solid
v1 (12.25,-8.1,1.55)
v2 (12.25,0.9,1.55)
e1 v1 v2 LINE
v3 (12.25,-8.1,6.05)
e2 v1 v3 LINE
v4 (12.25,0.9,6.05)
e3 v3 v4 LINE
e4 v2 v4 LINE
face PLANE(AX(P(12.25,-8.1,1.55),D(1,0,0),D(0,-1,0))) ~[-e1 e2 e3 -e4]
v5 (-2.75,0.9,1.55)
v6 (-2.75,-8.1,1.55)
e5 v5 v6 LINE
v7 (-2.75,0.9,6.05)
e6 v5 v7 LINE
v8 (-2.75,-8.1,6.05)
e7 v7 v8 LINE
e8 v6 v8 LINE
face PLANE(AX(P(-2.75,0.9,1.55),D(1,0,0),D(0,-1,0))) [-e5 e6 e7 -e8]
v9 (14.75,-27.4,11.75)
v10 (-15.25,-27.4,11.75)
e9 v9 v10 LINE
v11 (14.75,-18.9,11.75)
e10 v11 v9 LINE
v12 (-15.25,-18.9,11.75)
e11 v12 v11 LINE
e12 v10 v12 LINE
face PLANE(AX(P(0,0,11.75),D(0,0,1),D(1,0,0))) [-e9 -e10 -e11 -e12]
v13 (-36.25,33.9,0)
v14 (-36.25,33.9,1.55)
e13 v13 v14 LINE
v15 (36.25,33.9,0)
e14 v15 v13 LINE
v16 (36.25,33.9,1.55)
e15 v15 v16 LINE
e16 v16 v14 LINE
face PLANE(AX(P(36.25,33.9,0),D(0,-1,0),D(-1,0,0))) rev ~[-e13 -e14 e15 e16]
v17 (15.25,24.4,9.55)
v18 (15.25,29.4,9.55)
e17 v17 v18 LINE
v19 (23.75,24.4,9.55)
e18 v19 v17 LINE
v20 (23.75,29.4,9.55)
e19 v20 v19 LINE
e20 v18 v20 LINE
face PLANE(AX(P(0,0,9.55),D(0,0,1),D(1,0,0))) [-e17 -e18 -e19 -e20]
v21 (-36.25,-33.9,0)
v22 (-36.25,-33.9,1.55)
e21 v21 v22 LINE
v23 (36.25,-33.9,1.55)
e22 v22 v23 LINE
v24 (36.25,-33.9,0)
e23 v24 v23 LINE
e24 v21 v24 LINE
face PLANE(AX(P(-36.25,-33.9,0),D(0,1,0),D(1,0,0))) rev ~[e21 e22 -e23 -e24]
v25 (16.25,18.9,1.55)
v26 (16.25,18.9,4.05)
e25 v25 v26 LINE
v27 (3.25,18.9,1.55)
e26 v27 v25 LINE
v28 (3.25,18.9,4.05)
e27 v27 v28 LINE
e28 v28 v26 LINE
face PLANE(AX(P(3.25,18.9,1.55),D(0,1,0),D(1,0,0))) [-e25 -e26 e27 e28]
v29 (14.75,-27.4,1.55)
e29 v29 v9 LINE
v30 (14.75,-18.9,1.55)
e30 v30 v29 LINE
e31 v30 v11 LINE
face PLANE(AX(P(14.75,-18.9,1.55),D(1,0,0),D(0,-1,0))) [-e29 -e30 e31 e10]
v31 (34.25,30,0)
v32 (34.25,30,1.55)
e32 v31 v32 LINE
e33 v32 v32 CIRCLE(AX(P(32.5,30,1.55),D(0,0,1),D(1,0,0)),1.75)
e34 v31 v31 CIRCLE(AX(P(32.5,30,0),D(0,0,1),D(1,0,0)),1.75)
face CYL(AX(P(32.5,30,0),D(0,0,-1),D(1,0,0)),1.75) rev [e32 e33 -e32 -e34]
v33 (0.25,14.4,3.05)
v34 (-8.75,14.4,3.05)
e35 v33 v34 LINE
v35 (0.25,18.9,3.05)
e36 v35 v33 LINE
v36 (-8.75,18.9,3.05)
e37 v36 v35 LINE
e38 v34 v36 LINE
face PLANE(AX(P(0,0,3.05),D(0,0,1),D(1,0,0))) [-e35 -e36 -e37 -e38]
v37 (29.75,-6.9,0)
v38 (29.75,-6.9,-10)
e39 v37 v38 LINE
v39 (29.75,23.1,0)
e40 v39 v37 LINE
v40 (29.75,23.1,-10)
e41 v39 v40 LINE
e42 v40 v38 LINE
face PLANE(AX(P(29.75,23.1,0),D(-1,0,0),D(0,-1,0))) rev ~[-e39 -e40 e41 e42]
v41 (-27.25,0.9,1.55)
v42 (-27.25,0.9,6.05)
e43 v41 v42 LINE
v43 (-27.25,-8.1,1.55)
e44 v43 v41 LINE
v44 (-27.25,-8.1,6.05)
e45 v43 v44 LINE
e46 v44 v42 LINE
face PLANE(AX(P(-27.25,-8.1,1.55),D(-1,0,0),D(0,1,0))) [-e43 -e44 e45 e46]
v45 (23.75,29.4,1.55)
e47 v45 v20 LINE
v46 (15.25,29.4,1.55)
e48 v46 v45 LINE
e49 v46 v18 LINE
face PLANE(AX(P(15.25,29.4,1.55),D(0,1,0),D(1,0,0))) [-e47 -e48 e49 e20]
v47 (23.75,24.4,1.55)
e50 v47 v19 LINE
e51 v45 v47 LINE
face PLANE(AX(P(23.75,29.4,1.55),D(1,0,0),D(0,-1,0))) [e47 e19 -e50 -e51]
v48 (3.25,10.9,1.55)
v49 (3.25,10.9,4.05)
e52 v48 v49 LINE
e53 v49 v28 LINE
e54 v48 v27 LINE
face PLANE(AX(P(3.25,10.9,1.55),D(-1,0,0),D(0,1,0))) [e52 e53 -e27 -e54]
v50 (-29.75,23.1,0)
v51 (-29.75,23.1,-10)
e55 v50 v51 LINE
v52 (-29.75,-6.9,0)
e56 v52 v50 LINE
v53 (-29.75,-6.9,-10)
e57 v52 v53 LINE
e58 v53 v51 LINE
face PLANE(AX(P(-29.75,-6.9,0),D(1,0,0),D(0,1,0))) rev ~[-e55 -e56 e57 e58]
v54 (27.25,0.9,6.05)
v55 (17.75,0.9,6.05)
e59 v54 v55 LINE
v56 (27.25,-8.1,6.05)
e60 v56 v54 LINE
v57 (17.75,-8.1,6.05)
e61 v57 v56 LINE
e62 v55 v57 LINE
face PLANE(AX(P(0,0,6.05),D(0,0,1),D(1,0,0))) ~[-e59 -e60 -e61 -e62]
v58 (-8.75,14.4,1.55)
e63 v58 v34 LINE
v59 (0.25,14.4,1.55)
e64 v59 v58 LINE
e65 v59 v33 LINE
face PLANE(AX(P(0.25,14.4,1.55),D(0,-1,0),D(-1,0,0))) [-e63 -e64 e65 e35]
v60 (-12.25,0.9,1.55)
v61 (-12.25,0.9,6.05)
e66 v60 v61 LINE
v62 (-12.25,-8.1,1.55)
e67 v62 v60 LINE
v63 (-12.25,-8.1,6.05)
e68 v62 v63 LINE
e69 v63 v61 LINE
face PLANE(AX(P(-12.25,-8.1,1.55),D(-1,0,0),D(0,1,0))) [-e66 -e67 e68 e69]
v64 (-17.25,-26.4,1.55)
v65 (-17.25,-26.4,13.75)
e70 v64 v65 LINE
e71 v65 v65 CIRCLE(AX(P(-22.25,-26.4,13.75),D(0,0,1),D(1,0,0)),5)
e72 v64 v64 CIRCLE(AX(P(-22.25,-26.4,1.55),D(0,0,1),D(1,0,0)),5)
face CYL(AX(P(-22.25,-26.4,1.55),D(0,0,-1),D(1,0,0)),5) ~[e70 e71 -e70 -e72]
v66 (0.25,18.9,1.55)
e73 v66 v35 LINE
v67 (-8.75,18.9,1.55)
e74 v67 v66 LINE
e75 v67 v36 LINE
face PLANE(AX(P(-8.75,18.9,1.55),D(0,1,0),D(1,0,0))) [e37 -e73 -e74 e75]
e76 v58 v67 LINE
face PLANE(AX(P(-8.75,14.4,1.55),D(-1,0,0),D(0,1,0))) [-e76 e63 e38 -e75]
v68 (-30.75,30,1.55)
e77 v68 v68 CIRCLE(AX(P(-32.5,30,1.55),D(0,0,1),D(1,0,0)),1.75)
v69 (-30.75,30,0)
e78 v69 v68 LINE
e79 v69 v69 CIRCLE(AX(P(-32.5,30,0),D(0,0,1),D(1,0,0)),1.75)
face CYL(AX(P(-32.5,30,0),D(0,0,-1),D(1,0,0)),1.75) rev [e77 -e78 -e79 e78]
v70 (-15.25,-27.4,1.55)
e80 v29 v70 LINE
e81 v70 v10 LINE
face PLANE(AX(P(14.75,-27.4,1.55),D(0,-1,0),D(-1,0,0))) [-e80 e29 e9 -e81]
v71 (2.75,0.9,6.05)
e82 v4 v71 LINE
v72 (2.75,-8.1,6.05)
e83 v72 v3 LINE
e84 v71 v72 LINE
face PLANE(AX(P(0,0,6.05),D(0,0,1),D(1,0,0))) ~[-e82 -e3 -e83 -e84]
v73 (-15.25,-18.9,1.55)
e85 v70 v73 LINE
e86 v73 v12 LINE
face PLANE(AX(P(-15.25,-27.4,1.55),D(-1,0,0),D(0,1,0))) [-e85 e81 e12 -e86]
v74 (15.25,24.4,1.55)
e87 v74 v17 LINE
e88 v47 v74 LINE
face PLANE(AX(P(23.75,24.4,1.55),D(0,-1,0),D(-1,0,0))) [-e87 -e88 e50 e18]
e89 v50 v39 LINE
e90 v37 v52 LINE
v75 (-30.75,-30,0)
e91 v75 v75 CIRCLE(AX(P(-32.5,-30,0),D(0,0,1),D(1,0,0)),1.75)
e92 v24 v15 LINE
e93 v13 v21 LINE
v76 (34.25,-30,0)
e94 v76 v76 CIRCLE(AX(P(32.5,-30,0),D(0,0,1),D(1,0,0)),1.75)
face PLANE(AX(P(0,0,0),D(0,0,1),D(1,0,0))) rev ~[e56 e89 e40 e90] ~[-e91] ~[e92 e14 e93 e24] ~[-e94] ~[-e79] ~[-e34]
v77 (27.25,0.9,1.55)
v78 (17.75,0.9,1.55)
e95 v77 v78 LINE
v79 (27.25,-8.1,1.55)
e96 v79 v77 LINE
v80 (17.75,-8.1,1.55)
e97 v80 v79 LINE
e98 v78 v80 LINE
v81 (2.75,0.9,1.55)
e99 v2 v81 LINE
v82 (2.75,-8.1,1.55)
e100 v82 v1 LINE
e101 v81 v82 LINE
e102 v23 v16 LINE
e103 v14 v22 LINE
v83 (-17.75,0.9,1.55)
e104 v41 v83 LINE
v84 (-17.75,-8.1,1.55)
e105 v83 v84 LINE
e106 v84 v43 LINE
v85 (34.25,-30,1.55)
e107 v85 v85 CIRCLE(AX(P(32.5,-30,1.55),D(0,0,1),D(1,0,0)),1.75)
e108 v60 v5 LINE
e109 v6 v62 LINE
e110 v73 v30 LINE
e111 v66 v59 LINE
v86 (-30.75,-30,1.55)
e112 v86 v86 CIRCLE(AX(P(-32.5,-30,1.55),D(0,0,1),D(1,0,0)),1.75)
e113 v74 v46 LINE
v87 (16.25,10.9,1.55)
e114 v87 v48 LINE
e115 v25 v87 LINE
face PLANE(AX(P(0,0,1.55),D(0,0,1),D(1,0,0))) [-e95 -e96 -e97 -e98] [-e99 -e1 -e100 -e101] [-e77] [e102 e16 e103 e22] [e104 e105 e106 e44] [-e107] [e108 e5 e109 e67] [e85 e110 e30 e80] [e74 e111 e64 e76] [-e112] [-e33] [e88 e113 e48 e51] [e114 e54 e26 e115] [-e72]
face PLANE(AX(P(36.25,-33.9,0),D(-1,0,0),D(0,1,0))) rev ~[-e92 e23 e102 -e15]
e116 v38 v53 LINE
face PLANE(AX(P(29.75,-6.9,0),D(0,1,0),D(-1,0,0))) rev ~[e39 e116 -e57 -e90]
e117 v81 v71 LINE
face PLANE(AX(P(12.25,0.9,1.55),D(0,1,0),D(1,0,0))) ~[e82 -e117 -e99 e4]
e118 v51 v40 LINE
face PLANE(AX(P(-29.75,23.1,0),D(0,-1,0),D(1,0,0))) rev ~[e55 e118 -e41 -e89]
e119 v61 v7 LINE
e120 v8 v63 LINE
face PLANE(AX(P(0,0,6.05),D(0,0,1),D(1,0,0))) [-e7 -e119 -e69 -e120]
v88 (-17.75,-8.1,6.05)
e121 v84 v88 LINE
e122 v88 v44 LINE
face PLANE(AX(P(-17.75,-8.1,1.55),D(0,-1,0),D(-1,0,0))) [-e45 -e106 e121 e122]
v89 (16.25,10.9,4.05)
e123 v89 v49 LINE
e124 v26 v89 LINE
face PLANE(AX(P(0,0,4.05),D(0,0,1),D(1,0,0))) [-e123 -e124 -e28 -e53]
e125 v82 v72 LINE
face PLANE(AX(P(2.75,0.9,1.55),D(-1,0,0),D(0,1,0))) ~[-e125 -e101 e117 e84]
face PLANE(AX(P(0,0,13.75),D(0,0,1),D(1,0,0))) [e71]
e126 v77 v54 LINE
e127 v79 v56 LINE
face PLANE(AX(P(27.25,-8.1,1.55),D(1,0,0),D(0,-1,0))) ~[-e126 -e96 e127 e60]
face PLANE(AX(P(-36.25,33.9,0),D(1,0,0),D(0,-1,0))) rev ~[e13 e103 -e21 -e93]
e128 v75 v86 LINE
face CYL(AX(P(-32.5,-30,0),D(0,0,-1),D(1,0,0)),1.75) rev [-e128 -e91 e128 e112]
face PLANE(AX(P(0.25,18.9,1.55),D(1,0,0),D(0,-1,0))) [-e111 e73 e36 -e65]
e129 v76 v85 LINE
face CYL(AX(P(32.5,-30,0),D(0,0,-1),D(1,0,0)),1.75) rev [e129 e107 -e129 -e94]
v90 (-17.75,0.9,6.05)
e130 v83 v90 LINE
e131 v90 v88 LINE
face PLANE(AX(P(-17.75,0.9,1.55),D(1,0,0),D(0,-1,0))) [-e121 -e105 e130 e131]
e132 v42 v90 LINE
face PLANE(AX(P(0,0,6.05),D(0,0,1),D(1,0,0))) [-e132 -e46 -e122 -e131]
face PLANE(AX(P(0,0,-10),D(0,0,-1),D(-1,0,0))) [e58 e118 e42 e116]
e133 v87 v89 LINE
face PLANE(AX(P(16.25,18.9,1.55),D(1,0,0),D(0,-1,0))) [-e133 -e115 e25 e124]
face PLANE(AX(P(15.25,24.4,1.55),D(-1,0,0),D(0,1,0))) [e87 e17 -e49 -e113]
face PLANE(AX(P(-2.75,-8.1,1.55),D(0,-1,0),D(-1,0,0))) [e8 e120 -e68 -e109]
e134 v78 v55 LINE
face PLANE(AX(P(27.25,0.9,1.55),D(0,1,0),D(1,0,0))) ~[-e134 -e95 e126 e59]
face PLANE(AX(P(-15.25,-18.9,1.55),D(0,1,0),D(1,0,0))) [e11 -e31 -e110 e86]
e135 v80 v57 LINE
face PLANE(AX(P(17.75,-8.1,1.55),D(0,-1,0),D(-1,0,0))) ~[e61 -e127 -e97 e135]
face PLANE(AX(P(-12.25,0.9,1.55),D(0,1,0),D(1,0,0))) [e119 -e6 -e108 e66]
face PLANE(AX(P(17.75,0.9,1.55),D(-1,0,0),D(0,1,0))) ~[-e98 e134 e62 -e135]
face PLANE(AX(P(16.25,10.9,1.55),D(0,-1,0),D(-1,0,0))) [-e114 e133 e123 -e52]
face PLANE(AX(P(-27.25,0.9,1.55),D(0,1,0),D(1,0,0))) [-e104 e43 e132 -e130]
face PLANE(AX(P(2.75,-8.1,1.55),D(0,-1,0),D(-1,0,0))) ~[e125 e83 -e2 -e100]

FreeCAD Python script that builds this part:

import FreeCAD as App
import Part
import Sketcher

V = App.Vector

doc = App.newDocument("Part")
params = doc.addObject("Spreadsheet::Sheet", "Params")
for row, (alias, value) in enumerate([
    ("sketch1_diameter", "3.5 mm"),
    ("sketch1_width", "72.5 mm"),
    ("sketch1_height", "67.8 mm"),
    ("pad1_length", "1.55 mm"),
    ("sketch2_diameter", "10 mm"),
    ("pad2_length", "12.2 mm"),
    ("sketch3_height", "9 mm"),
    ("sketch3_width", "9.5 mm"),
    ("pad3_length", "4.5 mm"),
    ("sketch4_width", "30 mm"),
    ("sketch4_height", "8.5 mm"),
    ("pad4_length", "10.2 mm"),
    ("sketch5_width", "13 mm"),
    ("sketch5_height", "8 mm"),
    ("pad5_length", "2.5 mm"),
    ("sketch6_width", "9 mm"),
    ("sketch6_height", "4.5 mm"),
    ("pad6_length", "1.5 mm"),
    ("sketch7_height", "5 mm"),
    ("sketch7_width", "8.5 mm"),
    ("pad7_length", "8 mm"),
    ("sketch8_height", "30 mm"),
    ("sketch8_width", "59.5 mm"),
    ("pad8_length", "10 mm"),
], start=1):
    params.set(f"A{row}", alias)
    params.set(f"B{row}", "=" + value)
    params.setAlias(f"B{row}", alias)

body = doc.addObject("PartDesign::Body", "Body")

sketch1 = body.newObject("Sketcher::SketchObject", "Sketch")
sketch1.AttachmentSupport = (doc.getObject("XY_Plane"), [""])
sketch1.MapMode = "FlatFace"
sketch1.addGeometry([
    Part.LineSegment(V(-36.2, 33.9, 0), V(-36.2, -33.9, 0)),
    Part.LineSegment(V(-36.2, -33.9, 0), V(36.2, -33.9, 0)),
    Part.LineSegment(V(36.2, -33.9, 0), V(36.2, 33.9, 0)),
    Part.LineSegment(V(36.2, 33.9, 0), V(-36.2, 33.9, 0)),
    Part.Circle(V(-32.5, -30, 0), V(0, 0, 1), 1.8),
    Part.Circle(V(32.5, -30, 0), V(0, 0, 1), 1.8),
    Part.Circle(V(-32.5, 30, 0), V(0, 0, 1), 1.8),
    Part.Circle(V(32.5, 30, 0), V(0, 0, 1), 1.8),
], False)
sketch1.addConstraint([
    Sketcher.Constraint("Coincident", 0, 2, 1, 1),
    Sketcher.Constraint("Coincident", 1, 2, 2, 1),
    Sketcher.Constraint("Coincident", 2, 2, 3, 1),
    Sketcher.Constraint("Coincident", 3, 2, 0, 1),
    Sketcher.Constraint("Vertical", 0),
    Sketcher.Constraint("Horizontal", 1),
    Sketcher.Constraint("Vertical", 2),
    Sketcher.Constraint("Horizontal", 3),
    Sketcher.Constraint("Equal", 4, 5),
    Sketcher.Constraint("Equal", 5, 6),
    Sketcher.Constraint("Equal", 6, 7),
    Sketcher.Constraint("Symmetric", 5, 3, 6, 3, -1, 1),
    Sketcher.Constraint("Symmetric", 4, 3, 7, 3, -1, 1),
    Sketcher.Constraint("Symmetric", 0, 2, 2, 2, -1, 1),
    Sketcher.Constraint("Symmetric", 4, 3, 5, 3, -2),
    Sketcher.Constraint("Diameter", 4, 3.5),
    Sketcher.Constraint("DistanceX", 1, 1, 1, 2, 72.5),
    Sketcher.Constraint("DistanceY", 0, 2, 0, 1, 67.8),
    Sketcher.Constraint("DistanceX", 4, 3, 5, 3, 65.0),
    Sketcher.Constraint("DistanceY", 4, 3, 6, 3, 60.0),
])
sketch1.setExpression("Constraints[15]", "Params.sketch1_diameter")
sketch1.setExpression("Constraints[16]", "Params.sketch1_width")
sketch1.setExpression("Constraints[17]", "Params.sketch1_height")
pad1 = body.newObject("PartDesign::Pad", "Pad")
pad1.Profile = sketch1
pad1.setExpression("Length", "Params.pad1_length")

sketch2 = body.newObject("Sketcher::SketchObject", "Sketch001")
sketch2.AttachmentSupport = (doc.getObject("XY_Plane"), [""])
sketch2.MapMode = "FlatFace"
sketch2.AttachmentOffset = App.Placement(V(0, 0, 1.55), App.Rotation())
sketch2.addGeometry(Part.Circle(V(-22, -26, 0), V(0, 0, 1), 5), False)
sketch2.addConstraint([
    Sketcher.Constraint("Diameter", 0, 10.0),
    Sketcher.Constraint("DistanceY", 0, 3, -1, 1, 26.4),
    Sketcher.Constraint("DistanceX", 0, 3, -1, 1, 22.25),
])
sketch2.setExpression("Constraints[0]", "Params.sketch2_diameter")
pad2 = body.newObject("PartDesign::Pad", "Pad001")
pad2.Profile = sketch2
pad2.setExpression("Length", "Params.pad2_length")

sketch3 = body.newObject("Sketcher::SketchObject", "Sketch002")
sketch3.AttachmentSupport = (doc.getObject("XY_Plane"), [""])
sketch3.MapMode = "FlatFace"
sketch3.AttachmentOffset = App.Placement(V(0, 0, 1.55), App.Rotation())
sketch3.addGeometry([
    Part.LineSegment(V(-18, 1, 0), V(-27, 1, 0)),
    Part.LineSegment(V(-27, 1, 0), V(-27, -8, 0)),
    Part.LineSegment(V(-27, -8, 0), V(-18, -8, 0)),
    Part.LineSegment(V(-18, -8, 0), V(-18, 1, 0)),
    Part.LineSegment(V(-3, 1, 0), V(-12, 1, 0)),
    Part.LineSegment(V(-12, 1, 0), V(-12, -8, 0)),
    Part.LineSegment(V(-12, -8, 0), V(-3, -8, 0)),
    Part.LineSegment(V(-3, -8, 0), V(-3, 1, 0)),
], False)
sketch3.addConstraint([
    Sketcher.Constraint("Coincident", 0, 2, 1, 1),
    Sketcher.Constraint("Coincident", 1, 2, 2, 1),
    Sketcher.Constraint("Coincident", 2, 2, 3, 1),
    Sketcher.Constraint("Coincident", 3, 2, 0, 1),
    Sketcher.Constraint("Coincident", 4, 2, 5, 1),
    Sketcher.Constraint("Coincident", 5, 2, 6, 1),
    Sketcher.Constraint("Coincident", 6, 2, 7, 1),
    Sketcher.Constraint("Coincident", 7, 2, 4, 1),
    Sketcher.Constraint("Horizontal", 0),
    Sketcher.Constraint("Vertical", 1),
    Sketcher.Constraint("Horizontal", 2),
    Sketcher.Constraint("Vertical", 3),
    Sketcher.Constraint("Horizontal", 4),
    Sketcher.Constraint("Vertical", 5),
    Sketcher.Constraint("Horizontal", 6),
    Sketcher.Constraint("Vertical", 7),
    Sketcher.Constraint("Horizontal", 3, 2, 4, 2),
    Sketcher.Constraint("Horizontal", 2, 2, 5, 2),
    Sketcher.Constraint("Equal", 2, 4),
    Sketcher.Constraint("DistanceY", 1, 2, 1, 1, 9.0),
    Sketcher.Constraint("DistanceX", 0, 2, 0, 1, 9.5),
    Sketcher.Constraint("DistanceX", 0, 2, 4, 2, 15.0),
    Sketcher.Constraint("DistanceY", -1, 1, 0, 2, 0.9),
    Sketcher.Constraint("DistanceX", 0, 2, -1, 1, 27.25),
])
sketch3.setExpression("Constraints[19]", "Params.sketch3_height")
sketch3.setExpression("Constraints[20]", "Params.sketch3_width")
pad3 = body.newObject("PartDesign::Pad", "Pad002")
pad3.Profile = sketch3
pad3.setExpression("Length", "Params.pad3_length")

sketch4 = body.newObject("Sketcher::SketchObject", "Sketch003")
sketch4.AttachmentSupport = (doc.getObject("XY_Plane"), [""])
sketch4.MapMode = "FlatFace"
sketch4.AttachmentOffset = App.Placement(V(0, 0, 1.55), App.Rotation())
sketch4.addGeometry([
    Part.LineSegment(V(15, -19, 0), V(-15, -19, 0)),
    Part.LineSegment(V(-15, -19, 0), V(-15, -27, 0)),
    Part.LineSegment(V(-15, -27, 0), V(15, -27, 0)),
    Part.LineSegment(V(15, -27, 0), V(15, -19, 0)),
], False)
sketch4.addConstraint([
    Sketcher.Constraint("Coincident", 0, 2, 1, 1),
    Sketcher.Constraint("Coincident", 1, 2, 2, 1),
    Sketcher.Constraint("Coincident", 2, 2, 3, 1),
    Sketcher.Constraint("Coincident", 3, 2, 0, 1),
    Sketcher.Constraint("Horizontal", 0),
    Sketcher.Constraint("Vertical", 1),
    Sketcher.Constraint("Horizontal", 2),
    Sketcher.Constraint("Vertical", 3),
    Sketcher.Constraint("DistanceX", 0, 2, 0, 1, 30.0),
    Sketcher.Constraint("DistanceY", 1, 2, 1, 1, 8.5),
    Sketcher.Constraint("DistanceY", 0, 2, -1, 1, 18.9),
    Sketcher.Constraint("DistanceX", 0, 2, -1, 1, 15.25),
])
sketch4.setExpression("Constraints[8]", "Params.sketch4_width")
sketch4.setExpression("Constraints[9]", "Params.sketch4_height")
pad4 = body.newObject("PartDesign::Pad", "Pad003")
pad4.Profile = sketch4
pad4.setExpression("Length", "Params.pad4_length")

sketch5 = body.newObject("Sketcher::SketchObject", "Sketch004")
sketch5.AttachmentSupport = (doc.getObject("XY_Plane"), [""])
sketch5.MapMode = "FlatFace"
sketch5.AttachmentOffset = App.Placement(V(0, 0, 1.55), App.Rotation())
sketch5.addGeometry([
    Part.LineSegment(V(16, 19, 0), V(3, 19, 0)),
    Part.LineSegment(V(3, 19, 0), V(3, 11, 0)),
    Part.LineSegment(V(3, 11, 0), V(16, 11, 0)),
    Part.LineSegment(V(16, 11, 0), V(16, 19, 0)),
], False)
sketch5.addConstraint([
    Sketcher.Constraint("Coincident", 0, 2, 1, 1),
    Sketcher.Constraint("Coincident", 1, 2, 2, 1),
    Sketcher.Constraint("Coincident", 2, 2, 3, 1),
    Sketcher.Constraint("Coincident", 3, 2, 0, 1),
    Sketcher.Constraint("Horizontal", 0),
    Sketcher.Constraint("Vertical", 1),
    Sketcher.Constraint("Horizontal", 2),
    Sketcher.Constraint("Vertical", 3),
    Sketcher.Constraint("DistanceX", 0, 2, 0, 1, 13.0),
    Sketcher.Constraint("DistanceY", 1, 2, 1, 1, 8.0),
    Sketcher.Constraint("DistanceY", -1, 1, 0, 2, 18.9),
    Sketcher.Constraint("DistanceX", -1, 1, 0, 2, 3.25),
])
sketch5.setExpression("Constraints[8]", "Params.sketch5_width")
sketch5.setExpression("Constraints[9]", "Params.sketch5_height")
pad5 = body.newObject("PartDesign::Pad", "Pad004")
pad5.Profile = sketch5
pad5.setExpression("Length", "Params.pad5_length")

sketch6 = body.newObject("Sketcher::SketchObject", "Sketch005")
sketch6.AttachmentSupport = (doc.getObject("XY_Plane"), [""])
sketch6.MapMode = "FlatFace"
sketch6.AttachmentOffset = App.Placement(V(0, 0, 1.55), App.Rotation())
sketch6.addGeometry([
    Part.LineSegment(V(0.2, 18.9, 0), V(-8.8, 18.9, 0)),
    Part.LineSegment(V(-8.8, 18.9, 0), V(-8.8, 14.4, 0)),
    Part.LineSegment(V(-8.8, 14.4, 0), V(0.2, 14.4, 0)),
    Part.LineSegment(V(0.2, 14.4, 0), V(0.2, 18.9, 0)),
], False)
sketch6.addConstraint([
    Sketcher.Constraint("Coincident", 0, 2, 1, 1),
    Sketcher.Constraint("Coincident", 1, 2, 2, 1),
    Sketcher.Constraint("Coincident", 2, 2, 3, 1),
    Sketcher.Constraint("Coincident", 3, 2, 0, 1),
    Sketcher.Constraint("Horizontal", 0),
    Sketcher.Constraint("Vertical", 1),
    Sketcher.Constraint("Horizontal", 2),
    Sketcher.Constraint("Vertical", 3),
    Sketcher.Constraint("DistanceX", 0, 2, 0, 1, 9.0),
    Sketcher.Constraint("DistanceY", 1, 2, 1, 1, 4.5),
    Sketcher.Constraint("DistanceY", -1, 1, 0, 2, 18.9),
    Sketcher.Constraint("DistanceX", 0, 2, -1, 1, 8.75),
])
sketch6.setExpression("Constraints[8]", "Params.sketch6_width")
sketch6.setExpression("Constraints[9]", "Params.sketch6_height")
pad6 = body.newObject("PartDesign::Pad", "Pad005")
pad6.Profile = sketch6
pad6.setExpression("Length", "Params.pad6_length")

sketch7 = body.newObject("Sketcher::SketchObject", "Sketch006")
sketch7.AttachmentSupport = (doc.getObject("XY_Plane"), [""])
sketch7.MapMode = "FlatFace"
sketch7.AttachmentOffset = App.Placement(V(0, 0, 1.55), App.Rotation())
sketch7.addGeometry([
    Part.LineSegment(V(24, 29, 0), V(15, 29, 0)),
    Part.LineSegment(V(15, 29, 0), V(15, 24, 0)),
    Part.LineSegment(V(15, 24, 0), V(24, 24, 0)),
    Part.LineSegment(V(24, 24, 0), V(24, 29, 0)),
], False)
sketch7.addConstraint([
    Sketcher.Constraint("Coincident", 0, 2, 1, 1),
    Sketcher.Constraint("Coincident", 1, 2, 2, 1),
    Sketcher.Constraint("Coincident", 2, 2, 3, 1),
    Sketcher.Constraint("Coincident", 3, 2, 0, 1),
    Sketcher.Constraint("Horizontal", 0),
    Sketcher.Constraint("Vertical", 1),
    Sketcher.Constraint("Horizontal", 2),
    Sketcher.Constraint("Vertical", 3),
    Sketcher.Constraint("DistanceY", 1, 2, 1, 1, 5.0),
    Sketcher.Constraint("DistanceX", 0, 2, 0, 1, 8.5),
    Sketcher.Constraint("DistanceY", -1, 1, 0, 2, 29.4),
    Sketcher.Constraint("DistanceX", -1, 1, 0, 2, 15.25),
])
sketch7.setExpression("Constraints[8]", "Params.sketch7_height")
sketch7.setExpression("Constraints[9]", "Params.sketch7_width")
pad7 = body.newObject("PartDesign::Pad", "Pad006")
pad7.Profile = sketch7
pad7.setExpression("Length", "Params.pad7_length")
doc.recompute()

mirrored = body.newObject("PartDesign::Mirrored", "Mirrored")
mirrored.Originals = [pad3]
mirrored.MirrorPlane = (doc.getObject("YZ_Plane"), [""])
body.Tip = mirrored

sketch8 = body.newObject("Sketcher::SketchObject", "Sketch007")
sketch8.AttachmentSupport = (doc.getObject("XY_Plane"), [""])
sketch8.MapMode = "FlatFace"
sketch8.addGeometry([
    Part.LineSegment(V(-30, 23, 0), V(30, 23, 0)),
    Part.LineSegment(V(30, 23, 0), V(30, -7, 0)),
    Part.LineSegment(V(30, -7, 0), V(-30, -7, 0)),
    Part.LineSegment(V(-30, -7, 0), V(-30, 23, 0)),
], False)
sketch8.addConstraint([
    Sketcher.Constraint("Coincident", 0, 2, 1, 1),
    Sketcher.Constraint("Coincident", 1, 2, 2, 1),
    Sketcher.Constraint("Coincident", 2, 2, 3, 1),
    Sketcher.Constraint("Coincident", 3, 2, 0, 1),
    Sketcher.Constraint("Horizontal", 0),
    Sketcher.Constraint("Vertical", 1),
    Sketcher.Constraint("Horizontal", 2),
    Sketcher.Constraint("Vertical", 3),
    Sketcher.Constraint("DistanceY", 1, 2, 1, 1, 30.0),
    Sketcher.Constraint("DistanceX", 0, 1, 0, 2, 59.5),
    Sketcher.Constraint("DistanceY", -1, 1, 0, 2, 23.1),
    Sketcher.Constraint("DistanceX", -1, 1, 0, 2, 29.75),
])
sketch8.setExpression("Constraints[8]", "Params.sketch8_height")
sketch8.setExpression("Constraints[9]", "Params.sketch8_width")
pad8 = body.newObject("PartDesign::Pad", "Pad007")
pad8.Profile = sketch8
pad8.setExpression("Length", "Params.pad8_length")
pad8.Reversed = True

doc.recompute()
